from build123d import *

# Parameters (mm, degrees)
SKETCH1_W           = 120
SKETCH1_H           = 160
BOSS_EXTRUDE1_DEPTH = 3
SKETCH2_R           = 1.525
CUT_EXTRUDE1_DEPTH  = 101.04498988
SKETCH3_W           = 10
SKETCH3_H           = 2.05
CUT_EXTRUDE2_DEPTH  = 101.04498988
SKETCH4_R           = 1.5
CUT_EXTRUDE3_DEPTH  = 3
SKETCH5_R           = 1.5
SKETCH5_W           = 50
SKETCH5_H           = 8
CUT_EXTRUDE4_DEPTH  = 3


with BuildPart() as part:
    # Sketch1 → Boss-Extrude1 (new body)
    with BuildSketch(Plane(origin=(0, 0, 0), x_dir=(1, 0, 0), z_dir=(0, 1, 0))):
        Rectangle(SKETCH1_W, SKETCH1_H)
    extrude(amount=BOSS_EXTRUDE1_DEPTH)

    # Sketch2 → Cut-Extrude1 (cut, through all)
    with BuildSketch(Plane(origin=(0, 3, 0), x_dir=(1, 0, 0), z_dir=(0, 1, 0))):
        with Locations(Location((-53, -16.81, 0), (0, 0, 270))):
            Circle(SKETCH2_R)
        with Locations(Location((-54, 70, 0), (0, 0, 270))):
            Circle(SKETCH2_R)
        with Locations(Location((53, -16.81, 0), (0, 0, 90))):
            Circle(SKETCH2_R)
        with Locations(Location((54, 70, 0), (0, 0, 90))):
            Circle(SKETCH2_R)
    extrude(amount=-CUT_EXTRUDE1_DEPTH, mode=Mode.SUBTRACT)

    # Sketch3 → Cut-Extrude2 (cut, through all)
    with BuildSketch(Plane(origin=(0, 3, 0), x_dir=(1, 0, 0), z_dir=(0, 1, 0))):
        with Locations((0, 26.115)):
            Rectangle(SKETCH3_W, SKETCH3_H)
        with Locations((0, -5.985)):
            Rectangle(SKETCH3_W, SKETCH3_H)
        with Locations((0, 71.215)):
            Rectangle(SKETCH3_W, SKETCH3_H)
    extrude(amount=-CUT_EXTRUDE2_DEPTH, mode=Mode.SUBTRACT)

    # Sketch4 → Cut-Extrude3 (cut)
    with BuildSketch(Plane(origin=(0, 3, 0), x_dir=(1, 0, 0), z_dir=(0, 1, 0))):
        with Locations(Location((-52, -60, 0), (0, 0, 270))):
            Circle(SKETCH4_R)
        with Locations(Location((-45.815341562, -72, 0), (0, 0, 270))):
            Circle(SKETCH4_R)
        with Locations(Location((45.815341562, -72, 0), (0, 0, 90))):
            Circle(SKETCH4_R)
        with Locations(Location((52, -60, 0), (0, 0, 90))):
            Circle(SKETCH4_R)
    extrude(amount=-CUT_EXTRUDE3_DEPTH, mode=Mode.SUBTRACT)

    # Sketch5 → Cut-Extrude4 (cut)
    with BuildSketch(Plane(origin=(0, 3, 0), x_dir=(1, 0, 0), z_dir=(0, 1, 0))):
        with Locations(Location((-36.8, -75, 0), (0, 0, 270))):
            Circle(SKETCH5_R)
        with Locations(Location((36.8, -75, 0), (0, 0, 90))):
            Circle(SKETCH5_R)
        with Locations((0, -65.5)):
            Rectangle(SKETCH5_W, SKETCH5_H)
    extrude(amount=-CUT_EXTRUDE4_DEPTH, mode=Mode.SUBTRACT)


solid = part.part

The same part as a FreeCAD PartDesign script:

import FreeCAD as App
import Part
import Sketcher
from FreeCAD import Vector
Q = App.Units.Quantity

doc = App.newDocument("Part")
body = doc.addObject("PartDesign::Body", "Body")

sketch1 = body.newObject("Sketcher::SketchObject", "Sketch")
sketch1.AttachmentSupport = (doc.getObject("XZ_Plane"), [""])
sketch1.MapMode = "FlatFace"
sketch1.addGeometry([
    Part.LineSegment(Vector(-60, -80, 0), Vector(-60, 80, 0)),
    Part.LineSegment(Vector(-60, 80, 0), Vector(60, 80, 0)),
    Part.LineSegment(Vector(60, 80, 0), Vector(60, -80, 0)),
    Part.LineSegment(Vector(60, -80, 0), Vector(-60, -80, 0)),
], False)
sketch1.addConstraint([
    Sketcher.Constraint("Coincident", 0, 2, 1, 1),
    Sketcher.Constraint("Coincident", 1, 2, 2, 1),
    Sketcher.Constraint("Coincident", 2, 2, 3, 1),
    Sketcher.Constraint("Coincident", 3, 2, 0, 1),
    Sketcher.Constraint("Vertical", 0),
    Sketcher.Constraint("Horizontal", 1),
    Sketcher.Constraint("Vertical", 2),
    Sketcher.Constraint("Horizontal", 3),
    Sketcher.Constraint("Symmetric", 0, 2, 2, 2, -1, 1),
    Sketcher.Constraint("DistanceX", 1, 1, 1, 2, Q("120 mm")),
    Sketcher.Constraint("DistanceY", 0, 1, 0, 2, Q("160 mm")),
])
pad1 = body.newObject("PartDesign::Pad", "Pad")
pad1.Profile = sketch1
pad1.Length = 3
pad1.Reversed = True

sketch2 = body.newObject("Sketcher::SketchObject", "Sketch001")
sketch2.AttachmentSupport = (doc.getObject("XZ_Plane"), [""])
sketch2.MapMode = "FlatFace"
sketch2.AttachmentOffset = App.Placement(Vector(0, 0, -3), App.Rotation())
sketch2.addGeometry([
    Part.Circle(Vector(-53, 16.8, 0), Vector(0, 0, 1), 1.5),
    Part.Circle(Vector(-54, -70, 0), Vector(0, 0, 1), 1.5),
    Part.Circle(Vector(53, 16.8, 0), Vector(0, 0, 1), 1.5),
    Part.Circle(Vector(54, -70, 0), Vector(0, 0, 1), 1.5),
], False)
sketch2.addConstraint([
    Sketcher.Constraint("Equal", 0, 1),
    Sketcher.Constraint("Equal", 1, 2),
    Sketcher.Constraint("Equal", 2, 3),
    Sketcher.Constraint("Symmetric", 0, 3, 2, 3, -2),
    Sketcher.Constraint("Symmetric", 1, 3, 3, 3, -2),
    Sketcher.Constraint("Diameter", 0, Q("3.05 mm")),
    Sketcher.Constraint("DistanceX", 0, 3, -1, 1, Q("53 mm")),
    Sketcher.Constraint("DistanceX", 1, 3, -1, 1, Q("54 mm")),
    Sketcher.Constraint("DistanceY", 1, 3, -1, 1, Q("70 mm")),
    Sketcher.Constraint("DistanceY", -1, 1, 0, 3, Q("16.81 mm")),
])
pocket1 = body.newObject("PartDesign::Pocket", "Pocket")
pocket1.Profile = sketch2
pocket1.Type = "ThroughAll"
pocket1.Reversed = True

sketch3 = body.newObject("Sketcher::SketchObject", "Sketch002")
sketch3.AttachmentSupport = (doc.getObject("XZ_Plane"), [""])
sketch3.MapMode = "FlatFace"
sketch3.AttachmentOffset = App.Placement(Vector(0, 0, -3), App.Rotation())
sketch3.addGeometry([
    Part.LineSegment(Vector(-5, -27.1, 0), Vector(-5, -25.1, 0)),
    Part.LineSegment(Vector(-5, -25.1, 0), Vector(5, -25.1, 0)),
    Part.LineSegment(Vector(5, -25.1, 0), Vector(5, -27.1, 0)),
    Part.LineSegment(Vector(5, -27.1, 0), Vector(-5, -27.1, 0)),
    Part.LineSegment(Vector(-5, 5, 0), Vector(-5, 7, 0)),
    Part.LineSegment(Vector(-5, 7, 0), Vector(5, 7, 0)),
    Part.LineSegment(Vector(5, 7, 0), Vector(5, 5, 0)),
    Part.LineSegment(Vector(5, 5, 0), Vector(-5, 5, 0)),
    Part.LineSegment(Vector(-5, -72.2, 0), Vector(-5, -70.2, 0)),
    Part.LineSegment(Vector(-5, -70.2, 0), Vector(5, -70.2, 0)),
    Part.LineSegment(Vector(5, -70.2, 0), Vector(5, -72.2, 0)),
    Part.LineSegment(Vector(5, -72.2, 0), Vector(-5, -72.2, 0)),
], False)
sketch3.addConstraint([
    Sketcher.Constraint("Coincident", 0, 2, 1, 1),
    Sketcher.Constraint("Coincident", 1, 2, 2, 1),
    Sketcher.Constraint("Coincident", 2, 2, 3, 1),
    Sketcher.Constraint("Coincident", 3, 2, 0, 1),
    Sketcher.Constraint("Coincident", 4, 2, 5, 1),
    Sketcher.Constraint("Coincident", 5, 2, 6, 1),
    Sketcher.Constraint("Coincident", 6, 2, 7, 1),
    Sketcher.Constraint("Coincident", 7, 2, 4, 1),
    Sketcher.Constraint("Coincident", 8, 2, 9, 1),
    Sketcher.Constraint("Coincident", 9, 2, 10, 1),
    Sketcher.Constraint("Coincident", 10, 2, 11, 1),
    Sketcher.Constraint("Coincident", 11, 2, 8, 1),
    Sketcher.Constraint("Vertical", 0),
    Sketcher.Constraint("Horizontal", 1),
    Sketcher.Constraint("Vertical", 2),
    Sketcher.Constraint("Horizontal", 3),
    Sketcher.Constraint("Vertical", 4),
    Sketcher.Constraint("Horizontal", 5),
    Sketcher.Constraint("Vertical", 6),
    Sketcher.Constraint("Horizontal", 7),
    Sketcher.Constraint("Vertical", 8),
    Sketcher.Constraint("Horizontal", 9),
    Sketcher.Constraint("Vertical", 10),
    Sketcher.Constraint("Horizontal", 11),
    Sketcher.Constraint("Vertical", 3, 2, 4, 2),
    Sketcher.Constraint("Vertical", 2, 2, 5, 2),
    Sketcher.Constraint("Vertical", 7, 2, 8, 2),
    Sketcher.Constraint("Vertical", 6, 2, 9, 2),
    Sketcher.Constraint("Equal", 2, 4),
    Sketcher.Constraint("Equal", 6, 8),
    Sketcher.Constraint("DistanceX", 1, 1, 1, 2, Q("10 mm")),
    Sketcher.Constraint("DistanceX", 0, 2, -1, 1, Q("5 mm")),
    Sketcher.Constraint("DistanceY", 0, 1, 0, 2, Q("2.05 mm")),
    Sketcher.Constraint("DistanceY", 0, 2, 4, 2, Q("32.1 mm")),
    Sketcher.Constraint("DistanceY", 8, 2, 0, 2, Q("45.1 mm")),
    Sketcher.Constraint("DistanceY", 0, 2, -1, 1, Q("25.09 mm")),
])
pocket2 = body.newObject("PartDesign::Pocket", "Pocket001")
pocket2.Profile = sketch3
pocket2.Type = "ThroughAll"
pocket2.Reversed = True

sketch4 = body.newObject("Sketcher::SketchObject", "Sketch003")
sketch4.AttachmentSupport = (doc.getObject("XZ_Plane"), [""])
sketch4.MapMode = "FlatFace"
sketch4.AttachmentOffset = App.Placement(Vector(0, 0, -3), App.Rotation())
sketch4.addGeometry([
    Part.Circle(Vector(-52, 60, 0), Vector(0, 0, 1), 1.5),
    Part.Circle(Vector(-45.8, 72, 0), Vector(0, 0, 1), 1.5),
    Part.Circle(Vector(45.8, 72, 0), Vector(0, 0, 1), 1.5),
    Part.Circle(Vector(52, 60, 0), Vector(0, 0, 1), 1.5),
], False)
sketch4.addConstraint([
    Sketcher.Constraint("Equal", 0, 1),
    Sketcher.Constraint("Equal", 1, 2),
    Sketcher.Constraint("Equal", 2, 3),
    Sketcher.Constraint("Symmetric", 1, 3, 2, 3, -2),
    Sketcher.Constraint("Symmetric", 0, 3, 3, 3, -2),
    Sketcher.Constraint("Diameter", 0, Q("3 mm")),
    Sketcher.Constraint("DistanceX", 0, 3, -1, 1, Q("52 mm")),
    Sketcher.Constraint("DistanceY", -1, 1, 0, 3, Q("60 mm")),
    Sketcher.Constraint("DistanceY", -1, 1, 1, 3, Q("72 mm")),
    Sketcher.Constraint("DistanceX", 1, 3, -1, 1, Q("45.815342 mm")),
])
pocket3 = body.newObject("PartDesign::Pocket", "Pocket002")
pocket3.Profile = sketch4
pocket3.Length = 3
pocket3.Reversed = True

sketch5 = body.newObject("Sketcher::SketchObject", "Sketch004")
sketch5.AttachmentSupport = (doc.getObject("XZ_Plane"), [""])
sketch5.MapMode = "FlatFace"
sketch5.AttachmentOffset = App.Placement(Vector(0, 0, -3), App.Rotation())
sketch5.addGeometry([
    Part.Circle(Vector(-36.8, 75, 0), Vector(0, 0, 1), 1.5),
    Part.Circle(Vector(36.8, 75, 0), Vector(0, 0, 1), 1.5),
    Part.LineSegment(Vector(-25, 61.5, 0), Vector(-25, 69.5, 0)),
    Part.LineSegment(Vector(-25, 69.5, 0), Vector(25, 69.5, 0)),
    Part.LineSegment(Vector(25, 69.5, 0), Vector(25, 61.5, 0)),
    Part.LineSegment(Vector(25, 61.5, 0), Vector(-25, 61.5, 0)),
], False)
sketch5.addConstraint([
    Sketcher.Constraint("Coincident", 2, 2, 3, 1),
    Sketcher.Constraint("Coincident", 3, 2, 4, 1),
    Sketcher.Constraint("Coincident", 4, 2, 5, 1),
    Sketcher.Constraint("Coincident", 5, 2, 2, 1),
    Sketcher.Constraint("Vertical", 2),
    Sketcher.Constraint("Horizontal", 3),
    Sketcher.Constraint("Vertical", 4),
    Sketcher.Constraint("Horizontal", 5),
    Sketcher.Constraint("Equal", 0, 1),
    Sketcher.Constraint("Symmetric", 0, 3, 1, 3, -2),
    Sketcher.Constraint("Diameter", 0, Q("3 mm")),
    Sketcher.Constraint("DistanceX", 3, 1, 3, 2, Q("50 mm")),
    Sketcher.Constraint("DistanceY", 2, 1, 2, 2, Q("8 mm")),
    Sketcher.Constraint("DistanceY", -1, 1, 0, 3, Q("75 mm")),
    Sketcher.Constraint("DistanceX", 2, 2, -1, 1, Q("25 mm")),
    Sketcher.Constraint("DistanceX", 0, 3, -1, 1, Q("36.8 mm")),
    Sketcher.Constraint("DistanceY", -1, 1, 2, 2, Q("69.5 mm")),
])
pocket4 = body.newObject("PartDesign::Pocket", "Pocket003")
pocket4.Profile = sketch5
pocket4.Length = 3
pocket4.Reversed = True

doc.recompute()
